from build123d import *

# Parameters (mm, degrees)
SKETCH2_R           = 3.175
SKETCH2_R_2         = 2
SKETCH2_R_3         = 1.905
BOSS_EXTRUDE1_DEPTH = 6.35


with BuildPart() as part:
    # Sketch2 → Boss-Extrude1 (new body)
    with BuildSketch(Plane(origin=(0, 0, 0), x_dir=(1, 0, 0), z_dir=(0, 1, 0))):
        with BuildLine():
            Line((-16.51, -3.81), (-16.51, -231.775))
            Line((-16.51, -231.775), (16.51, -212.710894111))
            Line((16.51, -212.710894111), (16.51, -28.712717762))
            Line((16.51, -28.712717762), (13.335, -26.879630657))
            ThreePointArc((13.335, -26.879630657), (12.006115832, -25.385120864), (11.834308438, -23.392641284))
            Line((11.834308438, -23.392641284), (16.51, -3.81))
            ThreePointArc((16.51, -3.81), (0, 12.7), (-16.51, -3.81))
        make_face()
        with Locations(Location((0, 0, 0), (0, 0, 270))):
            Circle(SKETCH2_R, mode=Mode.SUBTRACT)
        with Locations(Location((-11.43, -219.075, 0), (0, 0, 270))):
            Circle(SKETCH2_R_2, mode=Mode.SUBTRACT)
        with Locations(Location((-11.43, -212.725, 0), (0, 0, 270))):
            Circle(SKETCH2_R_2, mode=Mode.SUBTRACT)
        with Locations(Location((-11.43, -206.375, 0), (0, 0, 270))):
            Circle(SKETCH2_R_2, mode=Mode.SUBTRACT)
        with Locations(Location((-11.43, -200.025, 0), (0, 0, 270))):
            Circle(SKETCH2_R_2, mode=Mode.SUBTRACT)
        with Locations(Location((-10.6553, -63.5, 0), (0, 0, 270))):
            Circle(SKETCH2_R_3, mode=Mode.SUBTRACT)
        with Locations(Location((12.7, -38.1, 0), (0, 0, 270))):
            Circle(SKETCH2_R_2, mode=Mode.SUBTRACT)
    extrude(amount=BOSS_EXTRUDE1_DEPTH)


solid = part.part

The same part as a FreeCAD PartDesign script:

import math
import FreeCAD as App
import Part
import Sketcher

V = App.Vector
Q = App.Units.Quantity

doc = App.newDocument("Part")
params = doc.addObject("Spreadsheet::Sheet", "Params")
for row, (alias, value) in enumerate([
    ("sketch1_diameter", "0.15 in"),
    ("sketch1_diameter2", "0.25 in"),
    ("sketch1_radius", "0.65 in"),
    ("sketch1_height", "8.975 in"),
    ("pad1_length", "0.25 in"),
], start=1):
    params.set(f"A{row}", alias)
    params.set(f"B{row}", "=" + value)
    params.setAlias(f"B{row}", alias)

body = doc.addObject("PartDesign::Body", "Body")

# Sketch on XZ plane
sketch1 = body.newObject("Sketcher::SketchObject", "Sketch")
sketch1.AttachmentSupport = (doc.getObject("XZ_Plane"), [""])
sketch1.MapMode = "FlatFace"
sketch1.addGeometry([
    Part.LineSegment(V(-16.5, 3.8, 0), V(-16.5, 231.8, 0)),  # 0
    Part.LineSegment(V(-16.5, 231.8, 0), V(16.5, 212.7, 0)),  # 1
    Part.LineSegment(V(16.5, 212.7, 0), V(16.5, 28.7, 0)),  # 2
    Part.LineSegment(V(16.5, 28.7, 0), V(13.3, 26.9, 0)),  # 3
    Part.ArcOfCircle(Part.Circle(V(14.9, 24.1, 0), V(0, 0, 1), 3.2), math.radians(120), math.radians(193)),  # 4
    Part.LineSegment(V(11.8, 23.4, 0), V(16.5, 3.8, 0)),  # 5
    Part.ArcOfCircle(Part.Circle(V(0, 3.8, 0), V(0, 0, 1), 16.5), math.radians(180), math.radians(360)),  # 6
    Part.Circle(V(-11.4, 219.1, 0), V(0, 0, 1), 2),  # 7
    Part.Circle(V(-11.4, 212.7, 0), V(0, 0, 1), 2),  # 8
    Part.Circle(V(-11.4, 206.4, 0), V(0, 0, 1), 2),  # 9
    Part.Circle(V(-11.4, 200, 0), V(0, 0, 1), 2),  # 10
    Part.Circle(V(-10.7, 63.5, 0), V(0, 0, 1), 1.9),  # 11
    Part.Circle(V(0, 0, 0), V(0, 0, 1), 3.2),  # 12
    Part.Circle(V(12.7, 38.1, 0), V(0, 0, 1), 2),  # 13
], False)
sketch1.addConstraint([
    Sketcher.Constraint("Coincident", 0, 2, 1, 1),
    Sketcher.Constraint("Coincident", 1, 2, 2, 1),
    Sketcher.Constraint("Coincident", 2, 2, 3, 1),
    Sketcher.Constraint("Tangent", 3, 2, 4, 1),
    Sketcher.Constraint("Tangent", 4, 2, 5, 1),
    Sketcher.Constraint("Coincident", 5, 2, 6, 2),
    Sketcher.Constraint("Tangent", 6, 1, 0, 1),
    Sketcher.Constraint("Vertical", 0),
    Sketcher.Constraint("Vertical", 2),
    Sketcher.Constraint("Coincident", 12, 3, -1, 1),
    Sketcher.Constraint("Equal", 7, 8),
    Sketcher.Constraint("Equal", 8, 9),
    Sketcher.Constraint("Equal", 9, 10),
    Sketcher.Constraint("Equal", 4, 12),
    Sketcher.Constraint("Equal", 10, 13),
    Sketcher.Constraint("Symmetric", 5, 2, 6, 1, -2),
    Sketcher.Constraint("Vertical", 7, 3, 8, 3),
    Sketcher.Constraint("Vertical", 8, 3, 9, 3),
    Sketcher.Constraint("Vertical", 9, 3, 10, 3),
    Sketcher.Constraint("Vertical", 2, 2, 5, 2),
    Sketcher.Constraint("Diameter", 11, Q("0.15 in")),
    Sketcher.Constraint("Diameter", 12, Q("0.25 in")),
    Sketcher.Constraint("Radius", 6, Q("0.65 in")),
    Sketcher.Constraint("Angle", 1, Q("-30 deg")),
    Sketcher.Constraint("Angle", 3, Q("-150 deg")),
    Sketcher.Constraint("DistanceY", 13, 3, 11, 3, Q("1 in")),
    Sketcher.Constraint("DistanceY", 9, 3, 0, 2, Q("1 in")),
    Sketcher.Constraint("DistanceY", -1, 1, 11, 3, Q("2.5 in")),
    Sketcher.Constraint("DistanceX", -1, 1, 13, 3, Q("0.5 in")),
    Sketcher.Constraint("DistanceY", 6, 3, 4, 3, Q("0.8 in")),
    Sketcher.Constraint("DistanceY", 9, 3, 7, 3, Q("0.5 in")),
    Sketcher.Constraint("DistanceY", 10, 3, 8, 3, Q("0.5 in")),
    Sketcher.Constraint("DistanceX", 0, 2, 7, 3, Q("0.2 in")),
    Sketcher.Constraint("Diameter", 7, Q("4 mm")),
    Sketcher.Constraint("DistanceY", 0, 1, 0, 2, Q("8.975 in")),
    Sketcher.Constraint("DistanceY", -1, 1, 4, 3, Q("0.95 in")),
    Sketcher.Constraint("DistanceY", 8, 3, 7, 3, Q("0.25 in")),
    Sketcher.Constraint("DistanceX", -1, 1, 3, 2, Q("0.525 in")),
    Sketcher.Constraint("DistanceX", 11, 3, 4, 3, Q("1.007 in")),
])
sketch1.setExpression("Constraints[20]", "Params.sketch1_diameter")
sketch1.setExpression("Constraints[21]", "Params.sketch1_diameter2")
sketch1.setExpression("Constraints[22]", "Params.sketch1_radius")
sketch1.setExpression("Constraints[34]", "Params.sketch1_height")
pad1 = body.newObject("PartDesign::Pad", "Pad")
pad1.Profile = sketch1
pad1.setExpression("Length", "Params.pad1_length")
pad1.Reversed = True

doc.recompute()
